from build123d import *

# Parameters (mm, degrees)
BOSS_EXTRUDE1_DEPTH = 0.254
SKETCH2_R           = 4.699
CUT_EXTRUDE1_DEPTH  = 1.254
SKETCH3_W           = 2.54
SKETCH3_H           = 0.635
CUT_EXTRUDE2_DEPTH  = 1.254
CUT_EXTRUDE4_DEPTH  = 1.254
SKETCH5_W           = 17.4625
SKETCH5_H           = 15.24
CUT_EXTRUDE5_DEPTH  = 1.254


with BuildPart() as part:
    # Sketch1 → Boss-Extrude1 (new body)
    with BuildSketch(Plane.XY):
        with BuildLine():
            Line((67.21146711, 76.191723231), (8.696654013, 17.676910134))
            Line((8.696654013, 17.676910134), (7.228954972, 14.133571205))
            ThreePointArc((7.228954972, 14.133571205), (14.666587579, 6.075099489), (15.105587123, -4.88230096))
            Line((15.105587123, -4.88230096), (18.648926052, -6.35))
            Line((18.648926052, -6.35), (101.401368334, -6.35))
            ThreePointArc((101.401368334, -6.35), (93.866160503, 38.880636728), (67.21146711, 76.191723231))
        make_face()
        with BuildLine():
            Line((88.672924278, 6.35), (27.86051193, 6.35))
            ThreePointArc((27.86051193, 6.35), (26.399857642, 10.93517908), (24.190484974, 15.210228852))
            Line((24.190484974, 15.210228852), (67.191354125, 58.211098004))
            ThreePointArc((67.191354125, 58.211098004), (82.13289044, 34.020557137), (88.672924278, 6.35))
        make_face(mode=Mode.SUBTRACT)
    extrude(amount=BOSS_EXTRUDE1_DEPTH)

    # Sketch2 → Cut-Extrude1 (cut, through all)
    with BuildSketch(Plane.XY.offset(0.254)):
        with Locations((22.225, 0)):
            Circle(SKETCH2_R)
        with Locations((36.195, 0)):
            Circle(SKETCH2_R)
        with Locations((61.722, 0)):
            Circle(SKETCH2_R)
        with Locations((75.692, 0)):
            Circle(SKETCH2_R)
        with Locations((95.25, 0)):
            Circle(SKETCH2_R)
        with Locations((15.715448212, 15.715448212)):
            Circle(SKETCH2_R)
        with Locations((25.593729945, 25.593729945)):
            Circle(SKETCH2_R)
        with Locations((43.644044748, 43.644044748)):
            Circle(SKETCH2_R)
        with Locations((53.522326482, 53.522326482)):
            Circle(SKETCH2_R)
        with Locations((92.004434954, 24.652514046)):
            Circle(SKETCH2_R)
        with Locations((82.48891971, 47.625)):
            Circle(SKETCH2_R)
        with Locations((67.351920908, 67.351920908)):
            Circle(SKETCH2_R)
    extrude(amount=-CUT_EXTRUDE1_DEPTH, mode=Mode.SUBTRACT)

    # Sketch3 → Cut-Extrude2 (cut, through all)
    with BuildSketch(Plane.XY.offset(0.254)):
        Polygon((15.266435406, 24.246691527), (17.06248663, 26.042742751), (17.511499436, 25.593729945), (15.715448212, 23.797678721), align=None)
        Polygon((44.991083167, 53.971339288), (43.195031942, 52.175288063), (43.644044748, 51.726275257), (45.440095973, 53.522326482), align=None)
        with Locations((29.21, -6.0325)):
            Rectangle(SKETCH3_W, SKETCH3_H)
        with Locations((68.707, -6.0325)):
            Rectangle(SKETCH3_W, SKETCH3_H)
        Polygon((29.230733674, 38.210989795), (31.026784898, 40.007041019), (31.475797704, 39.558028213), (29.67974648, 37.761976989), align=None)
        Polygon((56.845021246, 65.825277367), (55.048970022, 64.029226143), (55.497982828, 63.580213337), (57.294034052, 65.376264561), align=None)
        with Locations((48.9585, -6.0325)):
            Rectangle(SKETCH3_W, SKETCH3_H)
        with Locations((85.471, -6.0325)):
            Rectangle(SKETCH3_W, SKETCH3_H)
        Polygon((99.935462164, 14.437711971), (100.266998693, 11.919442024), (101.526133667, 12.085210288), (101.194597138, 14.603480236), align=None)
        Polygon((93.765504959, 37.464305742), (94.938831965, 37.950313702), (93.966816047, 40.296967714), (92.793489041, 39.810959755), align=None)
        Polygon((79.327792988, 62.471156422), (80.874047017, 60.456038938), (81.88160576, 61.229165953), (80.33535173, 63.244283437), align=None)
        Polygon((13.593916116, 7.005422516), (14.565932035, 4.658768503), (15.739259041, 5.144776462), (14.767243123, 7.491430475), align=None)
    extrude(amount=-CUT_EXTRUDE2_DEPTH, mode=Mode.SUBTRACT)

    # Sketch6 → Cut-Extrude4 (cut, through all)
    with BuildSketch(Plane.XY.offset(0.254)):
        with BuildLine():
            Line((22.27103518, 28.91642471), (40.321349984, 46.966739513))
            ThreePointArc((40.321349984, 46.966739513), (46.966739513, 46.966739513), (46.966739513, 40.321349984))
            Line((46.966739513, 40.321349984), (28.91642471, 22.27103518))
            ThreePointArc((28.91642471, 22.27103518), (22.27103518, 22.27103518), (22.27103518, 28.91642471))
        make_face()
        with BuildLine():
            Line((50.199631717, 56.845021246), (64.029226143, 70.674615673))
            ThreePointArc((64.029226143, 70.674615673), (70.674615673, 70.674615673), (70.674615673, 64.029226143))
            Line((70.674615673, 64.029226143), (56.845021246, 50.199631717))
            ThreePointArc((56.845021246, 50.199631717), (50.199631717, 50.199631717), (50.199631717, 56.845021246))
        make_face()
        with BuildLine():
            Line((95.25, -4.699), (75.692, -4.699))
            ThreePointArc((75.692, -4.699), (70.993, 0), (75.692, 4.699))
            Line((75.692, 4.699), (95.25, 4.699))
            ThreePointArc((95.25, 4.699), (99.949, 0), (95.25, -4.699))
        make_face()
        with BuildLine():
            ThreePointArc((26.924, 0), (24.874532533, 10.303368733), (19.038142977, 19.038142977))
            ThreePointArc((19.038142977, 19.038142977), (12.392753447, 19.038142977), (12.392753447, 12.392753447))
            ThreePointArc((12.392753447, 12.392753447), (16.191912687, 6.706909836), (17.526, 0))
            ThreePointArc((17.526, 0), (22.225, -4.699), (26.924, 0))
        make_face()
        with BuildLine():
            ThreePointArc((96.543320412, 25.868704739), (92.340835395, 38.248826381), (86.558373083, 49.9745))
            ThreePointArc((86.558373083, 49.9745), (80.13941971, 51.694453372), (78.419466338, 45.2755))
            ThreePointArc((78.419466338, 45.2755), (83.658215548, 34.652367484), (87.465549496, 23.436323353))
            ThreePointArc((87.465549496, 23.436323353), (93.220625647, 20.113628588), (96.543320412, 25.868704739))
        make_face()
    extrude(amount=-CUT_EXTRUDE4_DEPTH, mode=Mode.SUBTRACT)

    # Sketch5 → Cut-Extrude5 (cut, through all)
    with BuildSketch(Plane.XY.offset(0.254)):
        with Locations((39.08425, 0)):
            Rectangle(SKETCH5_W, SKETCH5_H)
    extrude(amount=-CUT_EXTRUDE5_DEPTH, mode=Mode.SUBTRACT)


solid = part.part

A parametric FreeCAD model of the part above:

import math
import FreeCAD as App
import Part
import Sketcher
from FreeCAD import Vector
Q = App.Units.Quantity


def add_polygon(sketch, points):
    """Adds a closed chain of lines whose ends are joined by coincident constraints."""
    first, n = sketch.GeometryCount, len(points)
    for a, b in zip(points, points[1:] + points[:1]):
        sketch.addGeometry(Part.LineSegment(App.Vector(*a, 0), App.Vector(*b, 0)), False)
    for i in range(n):
        sketch.addConstraint(Sketcher.Constraint("Coincident", first + i, 2, first + (i + 1) % n, 1))

doc = App.newDocument("Part")
body = doc.addObject("PartDesign::Body", "Body")

sketch1 = body.newObject("Sketcher::SketchObject", "Sketch")
sketch1.AttachmentSupport = (doc.getObject("XY_Plane"), [""])
sketch1.MapMode = "FlatFace"
sketch1.addGeometry([
    Part.LineSegment(Vector(67.2, 76.2, 0), Vector(8.7, 17.7, 0)),
    Part.LineSegment(Vector(8.7, 17.7, 0), Vector(7.2, 14.1, 0)),
    Part.ArcOfCircle(Part.Circle(Vector(0, 0, 0), Vector(0, 0, 1), 15.9), math.radians(-18), math.radians(63)),
    Part.LineSegment(Vector(15.1, -4.9, 0), Vector(18.6, -6.3, 0)),
    Part.LineSegment(Vector(18.6, -6.3, 0), Vector(101.4, -6.3, 0)),
    Part.ArcOfCircle(Part.Circle(Vector(0, 0, 0), Vector(0, 0, 1), 101.6), math.radians(-4), math.radians(49)),
    Part.ArcOfCircle(Part.Circle(Vector(0, 0, 0), Vector(0, 0, 1), 88.9), math.radians(4), math.radians(41)),
    Part.LineSegment(Vector(88.7, 6.3, 0), Vector(27.9, 6.3, 0)),
    Part.ArcOfCircle(Part.Circle(Vector(0, 0, 0), Vector(0, 0, 1), 28.6), math.radians(12.84), math.radians(32.16)),
    Part.LineSegment(Vector(24.2, 15.2, 0), Vector(67.2, 58.2, 0)),
], False)
sketch1.addConstraint([
    Sketcher.Constraint("Coincident", 0, 2, 1, 1),
    Sketcher.Constraint("Coincident", 1, 2, 2, 2),
    Sketcher.Constraint("Coincident", 2, 1, 3, 1),
    Sketcher.Constraint("Coincident", 3, 2, 4, 1),
    Sketcher.Constraint("Coincident", 4, 2, 5, 1),
    Sketcher.Constraint("Coincident", 5, 2, 0, 1),
    Sketcher.Constraint("Coincident", 6, 1, 7, 1),
    Sketcher.Constraint("Coincident", 7, 2, 8, 1),
    Sketcher.Constraint("Coincident", 8, 2, 9, 1),
    Sketcher.Constraint("Coincident", 9, 2, 6, 2),
    Sketcher.Constraint("Horizontal", 4),
    Sketcher.Constraint("Horizontal", 7),
    Sketcher.Constraint("Coincident", 2, 3, -1, 1),
    Sketcher.Constraint("Coincident", 5, 3, -1, 1),
    Sketcher.Constraint("Coincident", 6, 3, -1, 1),
    Sketcher.Constraint("Coincident", 8, 3, -1, 1),
    Sketcher.Constraint("Perpendicular", 1, 3),
    Sketcher.Constraint("Parallel", 0, 9),
    Sketcher.Constraint("Equal", 1, 3),
    Sketcher.Constraint("Radius", 5, Q("4 in")),
    Sketcher.Constraint("Radius", 6, Q("3.5 in")),
    Sketcher.Constraint("Angle", 0, Q("-135 deg")),
    Sketcher.Constraint("Radius", 2, Q("0.625 in")),
    Sketcher.Constraint("Radius", 8, Q("1.125 in")),
    Sketcher.Constraint("Angle", 1, Q("-112.5 deg")),
    Sketcher.Constraint("DistanceY", 4, 2, 6, 1, Q("0.5 in")),
    Sketcher.Constraint("DistanceY", 3, 2, -1, 1, Q("0.25 in")),
    Sketcher.Constraint("DistanceY", 2, 1, -1, 1, 4.882301),
    Sketcher.Constraint("DistanceY", -1, 1, 9, 2, 58.211098),
    Sketcher.Constraint("DistanceX", 5, 2, 4, 2, 34.189901),
])
pad1 = body.newObject("PartDesign::Pad", "Pad")
pad1.Profile = sketch1
pad1.Length = Q("0.01 in")

sketch2 = body.newObject("Sketcher::SketchObject", "Sketch001")
sketch2.AttachmentSupport = (doc.getObject("XY_Plane"), [""])
sketch2.MapMode = "FlatFace"
sketch2.AttachmentOffset = App.Placement(Vector(0, 0, 0.01 * 25.4), App.Rotation())
sketch2.addGeometry([
    Part.Circle(Vector(22.2, 0, 0), Vector(0, 0, 1), 4.7),
    Part.Circle(Vector(36.2, 0, 0), Vector(0, 0, 1), 4.7),
    Part.Circle(Vector(61.7, 0, 0), Vector(0, 0, 1), 4.7),
    Part.Circle(Vector(75.7, 0, 0), Vector(0, 0, 1), 4.7),
    Part.Circle(Vector(95.2, 0, 0), Vector(0, 0, 1), 4.7),
    Part.Circle(Vector(15.7, 15.7, 0), Vector(0, 0, 1), 4.7),
    Part.Circle(Vector(25.6, 25.6, 0), Vector(0, 0, 1), 4.7),
    Part.Circle(Vector(43.6, 43.6, 0), Vector(0, 0, 1), 4.7),
    Part.Circle(Vector(53.5, 53.5, 0), Vector(0, 0, 1), 4.7),
    Part.Circle(Vector(92, 24.7, 0), Vector(0, 0, 1), 4.7),
    Part.Circle(Vector(82.5, 47.6, 0), Vector(0, 0, 1), 4.7),
    Part.Circle(Vector(67.4, 67.4, 0), Vector(0, 0, 1), 4.7),
], False)
sketch2.addConstraint([
    Sketcher.Constraint("Equal", 0, 1),
    Sketcher.Constraint("Equal", 1, 2),
    Sketcher.Constraint("Equal", 2, 3),
    Sketcher.Constraint("Equal", 3, 4),
    Sketcher.Constraint("Equal", 4, 5),
    Sketcher.Constraint("Equal", 5, 6),
    Sketcher.Constraint("Equal", 6, 7),
    Sketcher.Constraint("Equal", 7, 8),
    Sketcher.Constraint("Equal", 8, 9),
    Sketcher.Constraint("Equal", 9, 10),
    Sketcher.Constraint("Equal", 10, 11),
    Sketcher.Constraint("PointOnObject", 0, 3, -1),
    Sketcher.Constraint("PointOnObject", 1, 3, -1),
    Sketcher.Constraint("PointOnObject", 2, 3, -1),
    Sketcher.Constraint("PointOnObject", 3, 3, -1),
    Sketcher.Constraint("PointOnObject", 4, 3, -1),
    Sketcher.Constraint("Diameter", 0, Q("0.37 in")),
    Sketcher.Constraint("DistanceX", -1, 1, 2, 3, Q("2.43 in")),
    Sketcher.Constraint("DistanceX", -1, 1, 3, 3, Q("2.98 in")),
    Sketcher.Constraint("DistanceX", -1, 1, 4, 3, Q("3.75 in")),
    Sketcher.Constraint("DistanceX", 0, 3, 1, 3, Q("0.55 in")),
    Sketcher.Constraint("DistanceX", -1, 1, 0, 3, Q("0.875 in")),
    Sketcher.Constraint("DistanceY", -1, 1, 10, 3, Q("1.875 in")),
    Sketcher.Constraint("DistanceX", 11, 3, 10, 3, 15.136999),
    Sketcher.Constraint("DistanceX", -1, 1, 5, 3, 15.715448),
    Sketcher.Constraint("DistanceY", -1, 1, 5, 3, 15.715448),
    Sketcher.Constraint("DistanceX", -1, 1, 6, 3, 25.59373),
    Sketcher.Constraint("DistanceY", -1, 1, 6, 3, 25.59373),
    Sketcher.Constraint("DistanceX", -1, 1, 10, 3, 82.48892),
    Sketcher.Constraint("DistanceY", -1, 1, 11, 3, 67.351921),
    Sketcher.Constraint("DistanceX", 7, 3, 8, 3, 9.878282),
    Sketcher.Constraint("DistanceY", 7, 3, 8, 3, 9.878282),
    Sketcher.Constraint("DistanceX", 5, 3, 8, 3, 37.806878),
    Sketcher.Constraint("DistanceY", 5, 3, 8, 3, 37.806878),
    Sketcher.Constraint("DistanceX", 8, 3, 9, 3, 38.482108),
    Sketcher.Constraint("DistanceY", 9, 3, 7, 3, 18.991531),
])
pocket1 = body.newObject("PartDesign::Pocket", "Pocket")
pocket1.Profile = sketch2
pocket1.Type = "ThroughAll"

sketch3 = body.newObject("Sketcher::SketchObject", "Sketch002")
sketch3.AttachmentSupport = (doc.getObject("XY_Plane"), [""])
sketch3.MapMode = "FlatFace"
sketch3.AttachmentOffset = App.Placement(Vector(0, 0, 0.01 * 25.4), App.Rotation())
add_polygon(sketch3, [(17.1, 26), (15.3, 24.2), (15.7, 23.8), (17.5, 25.6)])
add_polygon(sketch3, [(45, 54), (43.2, 52.2), (43.6, 51.7), (45.4, 53.5)])
add_polygon(sketch3, [(27.9, -5.7), (27.9, -6.3), (30.5, -6.3), (30.5, -5.7)])
add_polygon(sketch3, [(67.4, -5.7), (67.4, -6.3), (70, -6.3), (70, -5.7)])
add_polygon(sketch3, [(31, 40), (29.2, 38.2), (29.7, 37.8), (31.5, 39.6)])
add_polygon(sketch3, [(56.8, 65.8), (55, 64), (55.5, 63.6), (57.3, 65.4)])
add_polygon(sketch3, [(47.7, -5.7), (47.7, -6.3), (50.2, -6.3), (50.2, -5.7)])
add_polygon(sketch3, [(84.2, -5.7), (84.2, -6.3), (86.7, -6.3), (86.7, -5.7)])
add_polygon(sketch3, [(99.9, 14.4), (100.3, 11.9), (101.5, 12.1), (101.2, 14.6)])
add_polygon(sketch3, [(93.8, 37.5), (94.9, 38), (94, 40.3), (92.8, 39.8)])
add_polygon(sketch3, [(79.3, 62.5), (80.9, 60.5), (81.9, 61.2), (80.3, 63.2)])
add_polygon(sketch3, [(13.6, 7), (14.6, 4.7), (15.7, 5.1), (14.8, 7.5)])
sketch3.addConstraint([
    Sketcher.Constraint("Vertical", 8),
    Sketcher.Constraint("Horizontal", 9),
    Sketcher.Constraint("Vertical", 10),
    Sketcher.Constraint("Horizontal", 11),
    Sketcher.Constraint("Vertical", 12),
    Sketcher.Constraint("Horizontal", 13),
    Sketcher.Constraint("Vertical", 14),
    Sketcher.Constraint("Horizontal", 15),
    Sketcher.Constraint("Vertical", 24),
    Sketcher.Constraint("Horizontal", 25),
    Sketcher.Constraint("Vertical", 26),
    Sketcher.Constraint("Horizontal", 27),
    Sketcher.Constraint("Vertical", 28),
    Sketcher.Constraint("Horizontal", 29),
    Sketcher.Constraint("Vertical", 30),
    Sketcher.Constraint("Horizontal", 31),
    Sketcher.Constraint("Perpendicular", 0, 1),
    Sketcher.Constraint("Perpendicular", 1, 2),
    Sketcher.Constraint("Perpendicular", 2, 3),
    Sketcher.Constraint("Perpendicular", 3, 4),
    Sketcher.Constraint("Perpendicular", 4, 5),
    Sketcher.Constraint("Perpendicular", 5, 6),
    Sketcher.Constraint("Perpendicular", 6, 7),
    Sketcher.Constraint("Perpendicular", 7, 16),
    Sketcher.Constraint("Perpendicular", 16, 17),
    Sketcher.Constraint("Perpendicular", 17, 18),
    Sketcher.Constraint("Perpendicular", 18, 19),
    Sketcher.Constraint("Perpendicular", 19, 20),
    Sketcher.Constraint("Perpendicular", 20, 21),
    Sketcher.Constraint("Perpendicular", 21, 22),
    Sketcher.Constraint("Perpendicular", 22, 23),
    Sketcher.Constraint("Perpendicular", 32, 33),
    Sketcher.Constraint("Perpendicular", 33, 34),
    Sketcher.Constraint("Perpendicular", 34, 35),
    Sketcher.Constraint("Perpendicular", 36, 37),
    Sketcher.Constraint("Perpendicular", 37, 38),
    Sketcher.Constraint("Perpendicular", 38, 39),
    Sketcher.Constraint("Perpendicular", 40, 41),
    Sketcher.Constraint("Perpendicular", 41, 42),
    Sketcher.Constraint("Perpendicular", 42, 43),
    Sketcher.Constraint("Parallel", 39, 44),
    Sketcher.Constraint("Perpendicular", 44, 45),
    Sketcher.Constraint("Perpendicular", 45, 46),
    Sketcher.Constraint("Perpendicular", 46, 47),
    Sketcher.Constraint("Horizontal", 9, 2, 12, 2),
    Sketcher.Constraint("Horizontal", 11, 2, 14, 2),
    Sketcher.Constraint("Horizontal", 13, 2, 24, 2),
    Sketcher.Constraint("Horizontal", 15, 2, 26, 2),
    Sketcher.Constraint("Horizontal", 25, 2, 28, 2),
    Sketcher.Constraint("Horizontal", 27, 2, 30, 2),
    Sketcher.Constraint("Equal", 11, 13),
    Sketcher.Constraint("Equal", 15, 25),
    Sketcher.Constraint("Equal", 27, 29),
    Sketcher.Constraint("Equal", 2, 4),
    Sketcher.Constraint("Equal", 3, 5),
    Sketcher.Constraint("Equal", 6, 16),
    Sketcher.Constraint("Equal", 7, 17),
    Sketcher.Constraint("Equal", 18, 20),
    Sketcher.Constraint("Equal", 19, 21),
    Sketcher.Constraint("Equal", 22, 32),
    Sketcher.Constraint("Equal", 35, 36),
    Sketcher.Constraint("Equal", 34, 37),
    Sketcher.Constraint("Equal", 39, 40),
    Sketcher.Constraint("Equal", 38, 41),
    Sketcher.Constraint("Equal", 42, 44),
    Sketcher.Constraint("Equal", 43, 45),
    Sketcher.Constraint("DistanceX", 9, 1, 9, 2, Q("0.1 in")),
    Sketcher.Constraint("Angle", 0, Q("-135 deg")),
    Sketcher.Constraint("Distance", 0, Q("0.1 in")),
    Sketcher.Constraint("DistanceX", -1, 1, 8, 2, Q("1.1 in")),
    Sketcher.Constraint("Angle", 32, Q("-82.5 deg")),
    Sketcher.Constraint("Angle", 36, Q("22.5 deg")),
    Sketcher.Constraint("Angle", 40, Q("-52.5 deg")),
    Sketcher.Constraint("Distance", 33, Q("0.05 in")),
    Sketcher.Constraint("DistanceY", 8, 2, 8, 1, Q("0.025 in")),
    Sketcher.Constraint("DistanceY", 8, 2, -1, 1, Q("0.25 in")),
    Sketcher.Constraint("DistanceX", 13, 2, 28, 2, Q("0.56 in")),
    Sketcher.Constraint("Distance", 1, Q("0.025 in")),
    Sketcher.Constraint("DistanceX", -1, 1, 12, 2, Q("2.655 in")),
    Sketcher.Constraint("DistanceX", -1, 1, 24, 2, Q("1.8775 in")),
    Sketcher.Constraint("DistanceX", -1, 1, 2, 2, 17.511499),
    Sketcher.Constraint("DistanceX", -1, 1, 32, 2, 100.266999),
    Sketcher.Constraint("DistanceX", 16, 2, 4, 2, 13.964298),
    Sketcher.Constraint("DistanceY", 16, 2, 4, 2, 13.964298),
    Sketcher.Constraint("DistanceX", 0, 2, 16, 2, 13.964298),
    Sketcher.Constraint("DistanceY", 0, 2, 16, 2, 13.964298),
    Sketcher.Constraint("DistanceY", 6, 2, 20, 2, 10.5069),
    Sketcher.Constraint("DistanceX", 7, 2, 21, 2, 10.5069),
    Sketcher.Constraint("DistanceY", 35, 2, 36, 2, 23.512602),
    Sketcher.Constraint("DistanceX", 36, 2, 33, 2, 6.587302),
    Sketcher.Constraint("DistanceY", 37, 2, 41, 2, 20.932198),
    Sketcher.Constraint("DistanceY", 41, 2, 22, 2, 4.147099),
    Sketcher.Constraint("DistanceY", 46, 2, 2, 2, 18.102299),
    Sketcher.Constraint("DistanceY", -1, 1, 0, 2, 24.246692),
    Sketcher.Constraint("DistanceX", -1, 1, 42, 2, 80.335352),
    Sketcher.Constraint("DistanceX", -1, 1, 45, 2, 15.739259),
])
pocket2 = body.newObject("PartDesign::Pocket", "Pocket001")
pocket2.Profile = sketch3
pocket2.Type = "ThroughAll"

sketch4 = body.newObject("Sketcher::SketchObject", "Sketch003")
sketch4.AttachmentSupport = (doc.getObject("XY_Plane"), [""])
sketch4.MapMode = "FlatFace"
sketch4.AttachmentOffset = App.Placement(Vector(0, 0, 0.01 * 25.4), App.Rotation())
sketch4.addGeometry([
    Part.LineSegment(Vector(40.3, 47, 0), Vector(22.3, 28.9, 0)),
    Part.ArcOfCircle(Part.Circle(Vector(25.6, 25.6, 0), Vector(0, 0, 1), 4.7), math.radians(135), math.radians(315)),
    Part.LineSegment(Vector(28.9, 22.3, 0), Vector(47, 40.3, 0)),
    Part.ArcOfCircle(Part.Circle(Vector(43.6, 43.6, 0), Vector(0, 0, 1), 4.7), math.radians(-45), math.radians(135)),
    Part.LineSegment(Vector(64, 70.7, 0), Vector(50.2, 56.8, 0)),
    Part.ArcOfCircle(Part.Circle(Vector(53.5, 53.5, 0), Vector(0, 0, 1), 4.7), math.radians(135), math.radians(315)),
    Part.LineSegment(Vector(56.8, 50.2, 0), Vector(70.7, 64, 0)),
    Part.ArcOfCircle(Part.Circle(Vector(67.4, 67.4, 0), Vector(0, 0, 1), 4.7), math.radians(-45), math.radians(135)),
    Part.LineSegment(Vector(75.7, -4.7, 0), Vector(95.2, -4.7, 0)),
    Part.ArcOfCircle(Part.Circle(Vector(95.2, 0, 0), Vector(0, 0, 1), 4.7), math.radians(-90), math.radians(90)),
    Part.LineSegment(Vector(95.2, 4.7, 0), Vector(75.7, 4.7, 0)),
    Part.ArcOfCircle(Part.Circle(Vector(75.7, 0, 0), Vector(0, 0, 1), 4.7), math.radians(90), math.radians(270)),
    Part.ArcOfCircle(Part.Circle(Vector(0, 0, 0), Vector(0, 0, 1), 26.9), math.radians(0), math.radians(45)),
    Part.ArcOfCircle(Part.Circle(Vector(15.7, 15.7, 0), Vector(0, 0, 1), 4.7), math.radians(45), math.radians(225)),
    Part.ArcOfCircle(Part.Circle(Vector(0, 0, 0), Vector(0, 0, 1), 17.5), math.radians(0), math.radians(45)),
    Part.ArcOfCircle(Part.Circle(Vector(22.2, 0, 0), Vector(0, 0, 1), 4.7), math.radians(180), math.radians(360)),
    Part.ArcOfCircle(Part.Circle(Vector(0, 0, 0), Vector(0, 0, 1), 99.9), math.radians(15), math.radians(30)),
    Part.ArcOfCircle(Part.Circle(Vector(82.5, 47.6, 0), Vector(0, 0, 1), 4.7), math.radians(30), math.radians(210)),
    Part.ArcOfCircle(Part.Circle(Vector(0, 0, 0), Vector(0, 0, 1), 90.6), math.radians(15), math.radians(30)),
    Part.ArcOfCircle(Part.Circle(Vector(92, 24.7, 0), Vector(0, 0, 1), 4.7), math.radians(-165), math.radians(15)),
], False)
sketch4.addConstraint([
    Sketcher.Constraint("Tangent", 0, 2, 1, 1),
    Sketcher.Constraint("Tangent", 1, 2, 2, 1),
    Sketcher.Constraint("Tangent", 2, 2, 3, 1),
    Sketcher.Constraint("Tangent", 3, 2, 0, 1),
    Sketcher.Constraint("Tangent", 4, 2, 5, 1),
    Sketcher.Constraint("Tangent", 5, 2, 6, 1),
    Sketcher.Constraint("Tangent", 6, 2, 7, 1),
    Sketcher.Constraint("Tangent", 7, 2, 4, 1),
    Sketcher.Constraint("Tangent", 8, 2, 9, 1),
    Sketcher.Constraint("Tangent", 9, 2, 10, 1),
    Sketcher.Constraint("Tangent", 10, 2, 11, 1),
    Sketcher.Constraint("Tangent", 11, 2, 8, 1),
    Sketcher.Constraint("Tangent", 12, 2, 13, 1),
    Sketcher.Constraint("Tangent", 13, 2, 14, 2),
    Sketcher.Constraint("Tangent", 14, 1, 15, 1),
    Sketcher.Constraint("Tangent", 15, 2, 12, 1),
    Sketcher.Constraint("Tangent", 16, 2, 17, 1),
    Sketcher.Constraint("Tangent", 17, 2, 18, 2),
    Sketcher.Constraint("Tangent", 18, 1, 19, 1),
    Sketcher.Constraint("Tangent", 19, 2, 16, 1),
    Sketcher.Constraint("Horizontal", 8),
    Sketcher.Constraint("Horizontal", 10),
    Sketcher.Constraint("Coincident", 12, 3, -1, 1),
    Sketcher.Constraint("Coincident", 14, 3, -1, 1),
    Sketcher.Constraint("Coincident", 16, 3, -1, 1),
    Sketcher.Constraint("Coincident", 18, 3, -1, 1),
    Sketcher.Constraint("Equal", 1, 3),
    Sketcher.Constraint("Equal", 3, 5),
    Sketcher.Constraint("Equal", 5, 7),
    Sketcher.Constraint("Equal", 7, 9),
    Sketcher.Constraint("Equal", 11, 13),
    Sketcher.Constraint("Equal", 15, 17),
    Sketcher.Constraint("PointOnObject", 9, 3, -1),
    Sketcher.Constraint("PointOnObject", 15, 3, -1),
    Sketcher.Constraint("Parallel", 2, 4),
    Sketcher.Constraint("Radius", 12, Q("1.06 in")),
    Sketcher.Constraint("Radius", 14, Q("0.69 in")),
    Sketcher.Constraint("Angle", 0, Q("-135 deg")),
    Sketcher.Constraint("Radius", 16, Q("3.935 in")),
    Sketcher.Constraint("DistanceX", 8, 1, 8, 2, Q("0.77 in")),
    Sketcher.Constraint("Distance", 4, Q("0.77 in")),
    Sketcher.Constraint("DistanceX", -1, 1, 9, 3, Q("3.75 in")),
    Sketcher.Constraint("DistanceY", 8, 2, 17, 3, Q("2.06 in")),
    Sketcher.Constraint("Distance", 0, Q("1.005 in")),
    Sketcher.Constraint("DistanceX", 7, 3, 17, 3, 15.136999),
    Sketcher.Constraint("DistanceX", 17, 3, 19, 2, 14.054401),
    Sketcher.Constraint("DistanceX", -1, 1, 1, 3, 25.59373),
    Sketcher.Constraint("DistanceY", -1, 1, 1, 3, 25.59373),
    Sketcher.Constraint("DistanceY", -1, 1, 7, 3, 67.351921),
    Sketcher.Constraint("DistanceX", -1, 1, 13, 3, 15.715448),
])
pocket3 = body.newObject("PartDesign::Pocket", "Pocket002")
pocket3.Profile = sketch4
pocket3.Type = "ThroughAll"

sketch5 = body.newObject("Sketcher::SketchObject", "Sketch004")
sketch5.AttachmentSupport = (doc.getObject("XY_Plane"), [""])
sketch5.MapMode = "FlatFace"
sketch5.AttachmentOffset = App.Placement(Vector(0, 0, 0.01 * 25.4), App.Rotation())
add_polygon(sketch5, [(30, 8), (30, -8), (48, -8), (48, 8)])
sketch5.addConstraint([
    Sketcher.Constraint("Vertical", 0),
    Sketcher.Constraint("Horizontal", 1),
    Sketcher.Constraint("Vertical", 2),
    Sketcher.Constraint("Horizontal", 3),
    Sketcher.Constraint("DistanceY", 0, 2, 0, 1, Q("0.6 in")),
    Sketcher.Constraint("DistanceY", 0, 2, -1, 1, Q("0.3 in")),
    Sketcher.Constraint("DistanceX", 1, 1, 1, 2, Q("0.6875 in")),
    Sketcher.Constraint("DistanceX", -1, 1, 0, 2, Q("1.195 in")),
])
pocket4 = body.newObject("PartDesign::Pocket", "Pocket003")
pocket4.Profile = sketch5
pocket4.Type = "ThroughAll"

doc.recompute()
